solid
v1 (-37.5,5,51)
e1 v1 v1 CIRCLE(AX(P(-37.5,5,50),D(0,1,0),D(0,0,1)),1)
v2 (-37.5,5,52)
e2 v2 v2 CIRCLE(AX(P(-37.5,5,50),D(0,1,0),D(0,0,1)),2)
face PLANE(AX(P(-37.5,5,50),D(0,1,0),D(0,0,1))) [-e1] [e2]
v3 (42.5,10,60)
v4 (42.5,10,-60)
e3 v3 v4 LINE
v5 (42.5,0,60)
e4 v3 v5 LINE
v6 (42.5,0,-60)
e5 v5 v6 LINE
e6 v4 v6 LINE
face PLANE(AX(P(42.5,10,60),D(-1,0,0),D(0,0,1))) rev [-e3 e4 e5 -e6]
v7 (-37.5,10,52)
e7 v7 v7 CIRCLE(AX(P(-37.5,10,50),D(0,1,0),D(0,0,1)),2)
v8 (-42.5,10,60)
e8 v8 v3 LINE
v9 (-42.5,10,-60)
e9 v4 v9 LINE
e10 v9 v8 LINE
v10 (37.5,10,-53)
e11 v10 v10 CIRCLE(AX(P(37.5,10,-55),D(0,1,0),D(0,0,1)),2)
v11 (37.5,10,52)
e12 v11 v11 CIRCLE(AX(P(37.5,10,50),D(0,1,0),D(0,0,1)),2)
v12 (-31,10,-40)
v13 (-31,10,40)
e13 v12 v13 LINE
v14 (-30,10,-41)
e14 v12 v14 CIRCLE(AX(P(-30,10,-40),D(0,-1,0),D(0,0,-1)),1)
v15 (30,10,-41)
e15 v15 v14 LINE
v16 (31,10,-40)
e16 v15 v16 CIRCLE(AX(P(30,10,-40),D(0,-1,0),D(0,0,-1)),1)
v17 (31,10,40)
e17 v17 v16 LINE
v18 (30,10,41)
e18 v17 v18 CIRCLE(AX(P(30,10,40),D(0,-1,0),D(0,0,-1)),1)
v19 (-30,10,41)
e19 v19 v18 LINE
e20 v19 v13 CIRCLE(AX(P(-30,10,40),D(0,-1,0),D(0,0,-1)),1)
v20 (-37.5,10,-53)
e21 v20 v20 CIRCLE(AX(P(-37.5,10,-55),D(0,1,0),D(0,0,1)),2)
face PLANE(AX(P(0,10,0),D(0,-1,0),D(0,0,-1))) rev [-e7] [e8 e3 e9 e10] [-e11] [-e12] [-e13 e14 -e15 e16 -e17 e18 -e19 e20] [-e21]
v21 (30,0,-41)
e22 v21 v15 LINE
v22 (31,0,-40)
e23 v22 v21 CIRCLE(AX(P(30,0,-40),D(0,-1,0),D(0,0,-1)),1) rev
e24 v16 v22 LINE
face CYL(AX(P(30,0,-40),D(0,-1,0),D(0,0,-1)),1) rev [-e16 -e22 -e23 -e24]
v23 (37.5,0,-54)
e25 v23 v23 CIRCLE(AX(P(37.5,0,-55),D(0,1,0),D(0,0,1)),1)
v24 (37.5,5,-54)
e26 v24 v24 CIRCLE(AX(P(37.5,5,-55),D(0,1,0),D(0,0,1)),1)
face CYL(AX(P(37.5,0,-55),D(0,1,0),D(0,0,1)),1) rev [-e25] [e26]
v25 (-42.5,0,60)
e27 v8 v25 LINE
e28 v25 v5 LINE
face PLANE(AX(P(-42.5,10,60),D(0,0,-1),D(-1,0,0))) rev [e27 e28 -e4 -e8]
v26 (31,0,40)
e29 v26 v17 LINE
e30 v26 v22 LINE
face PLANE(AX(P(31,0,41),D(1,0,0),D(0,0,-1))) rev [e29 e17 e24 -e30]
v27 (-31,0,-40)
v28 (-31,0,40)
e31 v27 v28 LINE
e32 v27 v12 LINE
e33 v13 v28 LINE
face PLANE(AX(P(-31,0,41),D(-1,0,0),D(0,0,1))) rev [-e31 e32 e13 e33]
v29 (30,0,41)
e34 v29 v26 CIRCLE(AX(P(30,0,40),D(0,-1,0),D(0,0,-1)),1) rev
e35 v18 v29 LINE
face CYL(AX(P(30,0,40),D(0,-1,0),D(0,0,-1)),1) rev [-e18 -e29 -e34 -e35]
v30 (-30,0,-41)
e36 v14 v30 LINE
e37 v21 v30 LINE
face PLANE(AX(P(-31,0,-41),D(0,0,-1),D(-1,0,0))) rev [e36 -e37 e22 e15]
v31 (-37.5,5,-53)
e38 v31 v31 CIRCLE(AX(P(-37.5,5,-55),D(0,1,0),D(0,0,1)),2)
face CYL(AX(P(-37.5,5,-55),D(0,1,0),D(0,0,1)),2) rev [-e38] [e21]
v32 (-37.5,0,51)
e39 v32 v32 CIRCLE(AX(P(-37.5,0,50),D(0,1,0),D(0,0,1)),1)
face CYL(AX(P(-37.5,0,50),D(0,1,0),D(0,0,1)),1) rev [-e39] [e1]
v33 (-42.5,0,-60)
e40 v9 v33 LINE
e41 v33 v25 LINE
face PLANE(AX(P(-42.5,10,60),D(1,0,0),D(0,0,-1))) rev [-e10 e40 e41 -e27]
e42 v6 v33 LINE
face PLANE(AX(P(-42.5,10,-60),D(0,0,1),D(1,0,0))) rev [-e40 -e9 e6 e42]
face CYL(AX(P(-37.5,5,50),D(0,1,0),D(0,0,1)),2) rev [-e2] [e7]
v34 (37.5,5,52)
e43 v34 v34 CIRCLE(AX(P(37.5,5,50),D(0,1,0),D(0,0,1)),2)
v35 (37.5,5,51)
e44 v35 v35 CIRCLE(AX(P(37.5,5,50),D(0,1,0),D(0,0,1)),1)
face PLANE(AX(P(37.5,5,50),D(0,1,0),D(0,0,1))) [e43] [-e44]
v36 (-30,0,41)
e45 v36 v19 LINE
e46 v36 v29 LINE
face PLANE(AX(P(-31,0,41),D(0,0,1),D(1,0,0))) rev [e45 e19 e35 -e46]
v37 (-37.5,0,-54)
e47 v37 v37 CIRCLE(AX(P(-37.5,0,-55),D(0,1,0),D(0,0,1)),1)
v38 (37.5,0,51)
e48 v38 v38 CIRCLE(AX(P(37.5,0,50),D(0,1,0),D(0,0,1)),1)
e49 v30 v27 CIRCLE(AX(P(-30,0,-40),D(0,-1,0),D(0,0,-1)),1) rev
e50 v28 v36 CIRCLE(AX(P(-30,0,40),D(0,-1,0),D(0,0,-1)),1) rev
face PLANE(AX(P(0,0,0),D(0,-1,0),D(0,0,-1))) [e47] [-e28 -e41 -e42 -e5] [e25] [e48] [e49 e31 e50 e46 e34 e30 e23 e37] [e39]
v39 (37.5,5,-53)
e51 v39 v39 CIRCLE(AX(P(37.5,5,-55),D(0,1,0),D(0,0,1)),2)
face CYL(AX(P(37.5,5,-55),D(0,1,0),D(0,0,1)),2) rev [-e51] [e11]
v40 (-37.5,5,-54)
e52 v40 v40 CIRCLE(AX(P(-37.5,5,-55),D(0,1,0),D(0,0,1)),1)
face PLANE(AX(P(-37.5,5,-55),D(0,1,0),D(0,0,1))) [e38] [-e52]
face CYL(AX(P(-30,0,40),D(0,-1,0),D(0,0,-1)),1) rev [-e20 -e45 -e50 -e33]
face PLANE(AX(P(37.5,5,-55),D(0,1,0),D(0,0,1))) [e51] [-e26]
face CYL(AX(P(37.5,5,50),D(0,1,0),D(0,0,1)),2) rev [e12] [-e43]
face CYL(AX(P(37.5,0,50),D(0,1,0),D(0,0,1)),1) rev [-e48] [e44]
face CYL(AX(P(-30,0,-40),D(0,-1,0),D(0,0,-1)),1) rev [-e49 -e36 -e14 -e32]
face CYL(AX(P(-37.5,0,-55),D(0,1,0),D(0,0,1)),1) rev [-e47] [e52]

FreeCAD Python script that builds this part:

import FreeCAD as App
import Part
import Sketcher

V = App.Vector
Q = App.Units.Quantity


def edges_at(feature, points):
    """Names of the edges that pass closest to the given points."""
    edges = feature.Shape.Edges
    near = lambda p: min(range(len(edges)), key=lambda i: edges[i].distToShape(Part.Vertex(*p))[0])
    return sorted({f"Edge{near(p) + 1}" for p in points})


def add_polygon(sketch, points):
    """Adds a closed chain of lines whose ends are joined by coincident constraints."""
    first, n = sketch.GeometryCount, len(points)
    for a, b in zip(points, points[1:] + points[:1]):
        sketch.addGeometry(Part.LineSegment(App.Vector(*a, 0), App.Vector(*b, 0)), False)
    for i in range(n):
        sketch.addConstraint(Sketcher.Constraint("Coincident", first + i, 2, first + (i + 1) % n, 1))

doc = App.newDocument("Part")
body = doc.addObject("PartDesign::Body", "Body")

# Sketch on XZ plane
sketch1 = body.newObject("Sketcher::SketchObject", "Sketch")
sketch1.AttachmentSupport = (doc.getObject("XZ_Plane"), [""])
sketch1.MapMode = "FlatFace"
add_polygon(sketch1, [(-42, -60), (-42, 60), (42, 60), (42, -60)])  # lines 0-3
sketch1.addConstraint([
    Sketcher.Constraint("Vertical", 0),
    Sketcher.Constraint("Horizontal", 1),
    Sketcher.Constraint("Vertical", 2),
    Sketcher.Constraint("Horizontal", 3),
    Sketcher.Constraint("Symmetric", 0, 2, 2, 2, -1, 1),
    Sketcher.Constraint("DistanceX", 1, 1, 1, 2, Q("85 mm")),
    Sketcher.Constraint("DistanceY", 0, 1, 0, 2, Q("120 mm")),
])
pad1 = body.newObject("PartDesign::Pad", "Pad")
pad1.Profile = sketch1
pad1.Length = 10
pad1.Reversed = True

# Sketch on XZ plane
sketch2 = body.newObject("Sketcher::SketchObject", "Sketch001")
sketch2.AttachmentSupport = (doc.getObject("XZ_Plane"), [""])
sketch2.MapMode = "FlatFace"
sketch2.AttachmentOffset = App.Placement(V(0, 0, -10), App.Rotation())
add_polygon(sketch2, [(-31, -41), (-31, 41), (31, 41), (31, -41)])  # lines 0-3
sketch2.addConstraint([
    Sketcher.Constraint("Vertical", 0),
    Sketcher.Constraint("Horizontal", 1),
    Sketcher.Constraint("Vertical", 2),
    Sketcher.Constraint("Horizontal", 3),
    Sketcher.Constraint("Symmetric", 0, 2, 2, 2, -1, 1),
    Sketcher.Constraint("DistanceX", 1, 1, 1, 2, Q("62 mm")),
    Sketcher.Constraint("DistanceY", 0, 1, 0, 2, Q("82 mm")),
])
pocket1 = body.newObject("PartDesign::Pocket", "Pocket")
pocket1.Profile = sketch2
pocket1.Length = 10
pocket1.Reversed = True
doc.recompute()

fillet = body.newObject("PartDesign::Fillet", "Fillet")
fillet.Base = (pocket1, edges_at(pocket1, [
    (31, 5, -41),
    (31, 5, 41),
    (-31, 5, 41),
    (-31, 5, -41),
]))
fillet.Radius = 1

# Sketch on XZ plane
sketch3 = body.newObject("Sketcher::SketchObject", "Sketch002")
sketch3.AttachmentSupport = (doc.getObject("XZ_Plane"), [""])
sketch3.MapMode = "FlatFace"
sketch3.AttachmentOffset = App.Placement(V(0, 0, -10), App.Rotation())
sketch3.addGeometry([
    Part.Circle(V(-37.5, 50, 0), V(0, 0, 1), 2),
    Part.Circle(V(-37.5, -55, 0), V(0, 0, 1), 2),
    Part.Circle(V(37.5, -55, 0), V(0, 0, 1), 2),
    Part.Circle(V(37.5, 50, 0), V(0, 0, 1), 2),
], False)
sketch3.addConstraint([
    Sketcher.Constraint("Equal", 0, 1),
    Sketcher.Constraint("Equal", 1, 2),
    Sketcher.Constraint("Equal", 2, 3),
    Sketcher.Constraint("Symmetric", 1, 3, 2, 3, -2),
    Sketcher.Constraint("Symmetric", 0, 3, 3, 3, -2),
    Sketcher.Constraint("Vertical", 0, 3, 1, 3),
    Sketcher.Constraint("Diameter", 0, Q("4 mm")),
    Sketcher.Constraint("DistanceY", -1, 1, 0, 3, Q("50 mm")),
    Sketcher.Constraint("DistanceY", 1, 3, -1, 1, Q("55 mm")),
    Sketcher.Constraint("DistanceX", 1, 3, 2, 3, Q("75 mm")),
])
pocket2 = body.newObject("PartDesign::Pocket", "Pocket001")
pocket2.Profile = sketch3
pocket2.Length = 5
pocket2.Reversed = True

# Sketch on XZ plane
sketch4 = body.newObject("Sketcher::SketchObject", "Sketch003")
sketch4.AttachmentSupport = (doc.getObject("XZ_Plane"), [""])
sketch4.MapMode = "FlatFace"
sketch4.AttachmentOffset = App.Placement(V(0, 0, -5), App.Rotation())
sketch4.addGeometry([
    Part.Circle(V(-37.5, 50, 0), V(0, 0, 1), 1),
    Part.Circle(V(37.5, 50, 0), V(0, 0, 1), 1),
    Part.Circle(V(37.5, -55, 0), V(0, 0, 1), 1),
    Part.Circle(V(-37.5, -55, 0), V(0, 0, 1), 1),
], False)
sketch4.addConstraint([
    Sketcher.Constraint("Equal", 0, 1),
    Sketcher.Constraint("Equal", 1, 2),
    Sketcher.Constraint("Equal", 2, 3),
    Sketcher.Constraint("Symmetric", 0, 3, 1, 3, -2),
    Sketcher.Constraint("Symmetric", 2, 3, 3, 3, -2),
    Sketcher.Constraint("Vertical", 1, 3, 2, 3),
    Sketcher.Constraint("Diameter", 0, Q("2 mm")),
    Sketcher.Constraint("DistanceY", -1, 1, 0, 3, Q("50 mm")),
    Sketcher.Constraint("DistanceY", 2, 3, -1, 1, Q("55 mm")),
    Sketcher.Constraint("DistanceX", 0, 3, 1, 3, Q("75 mm")),
])
pocket3 = body.newObject("PartDesign::Pocket", "Pocket002")
pocket3.Profile = sketch4
pocket3.Length = 5
pocket3.Reversed = True

doc.recompute()
